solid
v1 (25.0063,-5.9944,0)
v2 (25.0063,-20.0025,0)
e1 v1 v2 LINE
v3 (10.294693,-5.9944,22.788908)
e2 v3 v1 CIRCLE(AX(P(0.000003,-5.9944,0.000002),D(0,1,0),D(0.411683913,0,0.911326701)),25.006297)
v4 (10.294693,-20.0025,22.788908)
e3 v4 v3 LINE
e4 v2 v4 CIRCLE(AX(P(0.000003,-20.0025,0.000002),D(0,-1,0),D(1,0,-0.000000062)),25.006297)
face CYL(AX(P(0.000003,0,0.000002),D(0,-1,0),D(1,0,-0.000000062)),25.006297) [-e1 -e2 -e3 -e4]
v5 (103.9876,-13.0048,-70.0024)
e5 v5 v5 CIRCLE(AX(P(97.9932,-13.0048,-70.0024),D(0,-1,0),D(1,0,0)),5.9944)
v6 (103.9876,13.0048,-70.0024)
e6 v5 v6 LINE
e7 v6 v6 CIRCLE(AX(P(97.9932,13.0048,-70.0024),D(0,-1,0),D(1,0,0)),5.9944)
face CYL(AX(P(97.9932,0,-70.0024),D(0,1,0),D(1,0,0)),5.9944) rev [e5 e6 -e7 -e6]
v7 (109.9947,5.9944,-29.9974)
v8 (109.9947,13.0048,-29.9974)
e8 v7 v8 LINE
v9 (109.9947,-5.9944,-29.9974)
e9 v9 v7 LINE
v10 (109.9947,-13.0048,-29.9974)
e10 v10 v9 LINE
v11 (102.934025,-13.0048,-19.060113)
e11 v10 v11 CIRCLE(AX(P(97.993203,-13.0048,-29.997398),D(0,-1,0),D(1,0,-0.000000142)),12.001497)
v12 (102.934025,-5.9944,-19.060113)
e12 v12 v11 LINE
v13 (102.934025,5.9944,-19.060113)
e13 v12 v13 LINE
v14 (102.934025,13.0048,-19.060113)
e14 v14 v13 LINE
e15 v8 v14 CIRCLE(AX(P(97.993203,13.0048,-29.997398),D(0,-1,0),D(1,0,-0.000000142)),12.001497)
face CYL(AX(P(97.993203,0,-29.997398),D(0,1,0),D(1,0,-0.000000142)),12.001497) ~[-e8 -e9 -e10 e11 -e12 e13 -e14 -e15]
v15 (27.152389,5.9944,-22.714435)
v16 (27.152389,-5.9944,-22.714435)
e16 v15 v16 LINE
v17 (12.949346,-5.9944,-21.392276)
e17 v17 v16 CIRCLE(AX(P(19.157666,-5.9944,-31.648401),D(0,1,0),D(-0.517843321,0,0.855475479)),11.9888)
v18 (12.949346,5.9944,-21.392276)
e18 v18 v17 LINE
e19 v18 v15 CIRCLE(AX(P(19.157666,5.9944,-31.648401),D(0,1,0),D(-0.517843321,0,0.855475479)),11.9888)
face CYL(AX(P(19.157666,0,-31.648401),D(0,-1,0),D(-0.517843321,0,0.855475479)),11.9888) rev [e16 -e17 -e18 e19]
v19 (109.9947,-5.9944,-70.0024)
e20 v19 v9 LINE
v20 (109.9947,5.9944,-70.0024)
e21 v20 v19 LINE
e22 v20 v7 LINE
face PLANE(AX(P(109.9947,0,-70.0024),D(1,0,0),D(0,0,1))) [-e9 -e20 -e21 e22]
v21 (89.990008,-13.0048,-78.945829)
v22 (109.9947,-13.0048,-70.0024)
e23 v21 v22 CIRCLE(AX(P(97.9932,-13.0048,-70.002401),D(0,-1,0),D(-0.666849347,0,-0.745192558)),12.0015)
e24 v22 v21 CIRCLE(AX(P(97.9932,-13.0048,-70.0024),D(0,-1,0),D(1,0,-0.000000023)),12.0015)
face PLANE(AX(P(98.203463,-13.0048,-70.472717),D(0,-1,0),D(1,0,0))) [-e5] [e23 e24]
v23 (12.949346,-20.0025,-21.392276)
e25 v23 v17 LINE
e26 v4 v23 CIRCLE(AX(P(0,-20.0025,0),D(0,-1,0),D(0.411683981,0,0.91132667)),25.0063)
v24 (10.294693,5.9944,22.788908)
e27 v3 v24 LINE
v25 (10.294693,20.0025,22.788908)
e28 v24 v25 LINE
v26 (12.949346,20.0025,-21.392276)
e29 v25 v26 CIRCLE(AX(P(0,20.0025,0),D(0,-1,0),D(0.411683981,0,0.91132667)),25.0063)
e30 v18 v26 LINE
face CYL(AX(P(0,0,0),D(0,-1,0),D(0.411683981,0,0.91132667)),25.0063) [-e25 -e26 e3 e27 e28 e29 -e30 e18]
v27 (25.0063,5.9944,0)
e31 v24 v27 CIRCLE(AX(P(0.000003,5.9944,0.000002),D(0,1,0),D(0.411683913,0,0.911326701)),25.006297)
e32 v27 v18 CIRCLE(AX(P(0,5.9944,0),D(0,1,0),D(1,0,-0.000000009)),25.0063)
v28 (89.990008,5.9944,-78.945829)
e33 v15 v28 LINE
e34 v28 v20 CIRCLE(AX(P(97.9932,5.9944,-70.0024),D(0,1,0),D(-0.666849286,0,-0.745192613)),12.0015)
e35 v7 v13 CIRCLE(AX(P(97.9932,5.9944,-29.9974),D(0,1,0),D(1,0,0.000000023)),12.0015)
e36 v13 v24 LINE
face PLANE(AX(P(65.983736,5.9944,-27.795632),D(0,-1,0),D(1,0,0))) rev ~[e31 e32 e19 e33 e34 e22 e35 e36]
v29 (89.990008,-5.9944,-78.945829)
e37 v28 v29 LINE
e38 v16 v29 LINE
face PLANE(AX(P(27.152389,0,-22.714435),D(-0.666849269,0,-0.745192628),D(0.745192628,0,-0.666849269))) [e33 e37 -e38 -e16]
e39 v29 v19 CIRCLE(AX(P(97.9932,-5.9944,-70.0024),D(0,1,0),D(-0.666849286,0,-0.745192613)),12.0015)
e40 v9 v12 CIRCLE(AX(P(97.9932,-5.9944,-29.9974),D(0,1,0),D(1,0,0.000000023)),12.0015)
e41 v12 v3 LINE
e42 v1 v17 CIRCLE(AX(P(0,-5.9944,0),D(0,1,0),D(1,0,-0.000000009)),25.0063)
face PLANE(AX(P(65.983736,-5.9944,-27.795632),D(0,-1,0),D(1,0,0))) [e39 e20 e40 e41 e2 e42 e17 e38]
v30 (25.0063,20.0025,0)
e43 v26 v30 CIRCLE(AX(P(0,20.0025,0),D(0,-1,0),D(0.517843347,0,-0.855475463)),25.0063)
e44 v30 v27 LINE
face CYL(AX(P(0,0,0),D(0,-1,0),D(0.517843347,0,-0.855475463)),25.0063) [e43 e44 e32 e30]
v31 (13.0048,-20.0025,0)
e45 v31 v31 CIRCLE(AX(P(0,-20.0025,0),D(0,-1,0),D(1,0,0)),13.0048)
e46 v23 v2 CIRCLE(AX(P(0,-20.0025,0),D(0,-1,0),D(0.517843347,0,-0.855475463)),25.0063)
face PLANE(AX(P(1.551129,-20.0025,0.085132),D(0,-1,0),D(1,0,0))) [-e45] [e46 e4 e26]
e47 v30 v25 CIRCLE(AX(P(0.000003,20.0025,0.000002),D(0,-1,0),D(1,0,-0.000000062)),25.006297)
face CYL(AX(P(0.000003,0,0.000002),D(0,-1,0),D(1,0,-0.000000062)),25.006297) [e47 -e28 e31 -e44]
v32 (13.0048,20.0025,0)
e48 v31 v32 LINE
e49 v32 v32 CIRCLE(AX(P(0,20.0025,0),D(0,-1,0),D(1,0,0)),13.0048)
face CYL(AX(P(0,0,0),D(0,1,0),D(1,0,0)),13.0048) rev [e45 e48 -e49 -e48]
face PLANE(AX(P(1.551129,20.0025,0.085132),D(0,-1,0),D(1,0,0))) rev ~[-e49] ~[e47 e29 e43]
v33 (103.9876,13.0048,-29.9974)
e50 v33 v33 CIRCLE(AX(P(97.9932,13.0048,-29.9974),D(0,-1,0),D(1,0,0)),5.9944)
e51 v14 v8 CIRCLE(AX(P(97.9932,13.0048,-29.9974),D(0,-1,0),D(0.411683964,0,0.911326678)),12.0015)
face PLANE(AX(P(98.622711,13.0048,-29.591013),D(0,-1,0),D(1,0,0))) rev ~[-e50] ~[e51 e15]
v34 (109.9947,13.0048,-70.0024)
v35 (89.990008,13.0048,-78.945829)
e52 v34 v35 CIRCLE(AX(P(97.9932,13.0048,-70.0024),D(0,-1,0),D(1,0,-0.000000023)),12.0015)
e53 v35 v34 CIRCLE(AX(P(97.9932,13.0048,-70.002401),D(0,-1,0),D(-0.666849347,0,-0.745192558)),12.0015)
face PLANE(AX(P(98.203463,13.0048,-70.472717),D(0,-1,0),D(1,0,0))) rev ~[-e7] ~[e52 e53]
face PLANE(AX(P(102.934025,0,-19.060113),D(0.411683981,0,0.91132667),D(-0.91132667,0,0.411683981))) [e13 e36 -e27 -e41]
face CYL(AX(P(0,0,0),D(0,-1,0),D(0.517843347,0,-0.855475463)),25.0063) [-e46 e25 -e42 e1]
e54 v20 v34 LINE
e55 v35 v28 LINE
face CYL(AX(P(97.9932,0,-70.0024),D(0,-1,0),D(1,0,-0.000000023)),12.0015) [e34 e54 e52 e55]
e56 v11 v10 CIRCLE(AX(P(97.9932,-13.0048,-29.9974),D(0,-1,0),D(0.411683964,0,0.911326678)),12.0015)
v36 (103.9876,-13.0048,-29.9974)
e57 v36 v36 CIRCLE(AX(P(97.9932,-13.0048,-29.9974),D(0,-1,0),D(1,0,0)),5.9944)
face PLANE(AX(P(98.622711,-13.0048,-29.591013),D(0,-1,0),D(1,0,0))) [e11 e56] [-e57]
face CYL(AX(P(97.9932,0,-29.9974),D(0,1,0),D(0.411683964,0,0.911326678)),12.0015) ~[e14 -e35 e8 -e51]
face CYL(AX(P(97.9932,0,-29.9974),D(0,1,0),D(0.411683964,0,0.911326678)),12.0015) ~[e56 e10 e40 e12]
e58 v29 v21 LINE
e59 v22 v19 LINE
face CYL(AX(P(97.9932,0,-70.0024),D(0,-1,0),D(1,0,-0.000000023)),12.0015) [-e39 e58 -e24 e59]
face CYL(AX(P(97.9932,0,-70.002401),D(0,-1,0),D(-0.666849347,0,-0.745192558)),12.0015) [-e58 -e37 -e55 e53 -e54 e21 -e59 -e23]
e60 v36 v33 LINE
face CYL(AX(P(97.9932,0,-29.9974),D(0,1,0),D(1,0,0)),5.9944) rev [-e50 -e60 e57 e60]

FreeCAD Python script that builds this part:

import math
import FreeCAD as App
import Part
import Sketcher
Q = App.Units.Quantity

doc = App.newDocument("Part")
body = doc.addObject("PartDesign::Body", "Body")

sketch1 = body.newObject("Sketcher::SketchObject", "Sketch")
sketch1.AttachmentSupport = (doc.getObject("XZ_Plane"), [""])
sketch1.MapMode = "FlatFace"
sketch1.addGeometry([
    Part.ArcOfCircle(Part.Circle(App.Vector(0, 0, 0), App.Vector(0, 0, 1), 25), math.radians(0), math.radians(66)),
    Part.ArcOfCircle(Part.Circle(App.Vector(0, 0, 0), App.Vector(0, 0, 1), 25), math.radians(-59), math.radians(0)),
    Part.ArcOfCircle(Part.Circle(App.Vector(19, -32, 0), App.Vector(0, 0, 1), 12), math.radians(48), math.radians(121)),
    Part.LineSegment(App.Vector(27, -23, 0), App.Vector(90, -79, 0)),
    Part.ArcOfCircle(Part.Circle(App.Vector(98, -70, 0), App.Vector(0, 0, 1), 12), math.radians(0), math.radians(228)),
    Part.LineSegment(App.Vector(110, -70, 0), App.Vector(110, -30, 0)),
    Part.ArcOfCircle(Part.Circle(App.Vector(98, -30, 0), App.Vector(0, 0, 1), 12), math.radians(66), math.radians(360)),
    Part.LineSegment(App.Vector(103, -19, 0), App.Vector(10, 23, 0)),
], False)
sketch1.addConstraint([
    Sketcher.Constraint("Tangent", 0, 1, 1, 2),
    Sketcher.Constraint("Tangent", 1, 1, 2, 2),
    Sketcher.Constraint("Tangent", 2, 1, 3, 1),
    Sketcher.Constraint("Tangent", 3, 2, 4, 2),
    Sketcher.Constraint("Tangent", 4, 1, 5, 1),
    Sketcher.Constraint("Tangent", 5, 2, 6, 2),
    Sketcher.Constraint("Tangent", 6, 1, 7, 1),
    Sketcher.Constraint("Tangent", 7, 2, 0, 2),
    Sketcher.Constraint("Vertical", 5),
    Sketcher.Constraint("Coincident", 0, 3, -1, 1),
    Sketcher.Constraint("Equal", 4, 6),
    Sketcher.Constraint("PointOnObject", 0, 1, -1),
    Sketcher.Constraint("Radius", 2, Q("0.472 in")),
    Sketcher.Constraint("Radius", 0, Q("0.9844999 in")),
    Sketcher.Constraint("Radius", 1, Q("0.9845 in")),
    Sketcher.Constraint("Radius", 4, Q("0.4725 in")),
    Sketcher.Constraint("DistanceY", 5, 1, 5, 2, Q("1.575 in")),
    Sketcher.Constraint("DistanceY", 4, 3, 2, 3, Q("1.51 in")),
    Sketcher.Constraint("DistanceY", 2, 3, -1, 1, Q("1.246 in")),
    Sketcher.Constraint("DistanceX", -1, 1, 4, 3, Q("3.858 in")),
])
pad1 = body.newObject("PartDesign::Pad", "Pad")
pad1.Profile = sketch1
pad1.Length = Q("0.472 in")
pad1.Midplane = True

sketch2 = body.newObject("Sketcher::SketchObject", "Sketch001")
sketch2.AttachmentSupport = (doc.getObject("XZ_Plane"), [""])
sketch2.MapMode = "FlatFace"
sketch2.addGeometry([
    Part.ArcOfCircle(Part.Circle(App.Vector(0, 0, 0), App.Vector(0, 0, 1), 25), math.radians(-59), math.radians(0)),
    Part.ArcOfCircle(Part.Circle(App.Vector(0, 0, 0), App.Vector(0, 0, 1), 25), math.radians(0), math.radians(66)),
    Part.ArcOfCircle(Part.Circle(App.Vector(0, 0, 0), App.Vector(0, 0, 1), 25), math.radians(66), math.radians(301)),
    Part.Circle(App.Vector(0, 0, 0), App.Vector(0, 0, 1), 13),
], False)
sketch2.addConstraint([
    Sketcher.Constraint("Tangent", 0, 2, 1, 1),
    Sketcher.Constraint("Tangent", 1, 2, 2, 1),
    Sketcher.Constraint("Tangent", 2, 2, 0, 1),
    Sketcher.Constraint("Coincident", 0, 3, -1, 1),
    Sketcher.Constraint("Coincident", 3, 3, -1, 1),
    Sketcher.Constraint("PointOnObject", 0, 2, -1),
    Sketcher.Constraint("Diameter", 3, Q("1.024 in")),
    Sketcher.Constraint("Radius", 0, Q("0.9845 in")),
    Sketcher.Constraint("DistanceY", -1, 1, 1, 2, 22.788908),
    Sketcher.Constraint("DistanceX", -1, 1, 2, 2, 12.949346),
])
pad2 = body.newObject("PartDesign::Pad", "Pad001")
pad2.Profile = sketch2
pad2.Length = Q("1.575 in")
pad2.Midplane = True

sketch3 = body.newObject("Sketcher::SketchObject", "Sketch002")
sketch3.AttachmentSupport = (doc.getObject("XZ_Plane"), [""])
sketch3.MapMode = "FlatFace"
sketch3.addGeometry([
    Part.ArcOfCircle(Part.Circle(App.Vector(98, -30, 0), App.Vector(0, 0, 1), 12), math.radians(0), math.radians(66)),
    Part.ArcOfCircle(Part.Circle(App.Vector(98, -30, 0), App.Vector(0, 0, 1), 12), math.radians(66), math.radians(360)),
    Part.Circle(App.Vector(98, -30, 0), App.Vector(0, 0, 1), 6),
    Part.ArcOfCircle(Part.Circle(App.Vector(98, -70, 0), App.Vector(0, 0, 1), 12), math.radians(0), math.radians(228)),
    Part.ArcOfCircle(Part.Circle(App.Vector(98, -70, 0), App.Vector(0, 0, 1), 12), math.radians(-132), math.radians(0)),
    Part.Circle(App.Vector(98, -70, 0), App.Vector(0, 0, 1), 6),
], False)
sketch3.addConstraint([
    Sketcher.Constraint("Tangent", 0, 1, 1, 2),
    Sketcher.Constraint("Coincident", 1, 1, 0, 2),
    Sketcher.Constraint("Tangent", 3, 1, 4, 2),
    Sketcher.Constraint("Coincident", 4, 1, 3, 2),
    Sketcher.Constraint("Coincident", 2, 3, 0, 3),
    Sketcher.Constraint("Coincident", 5, 3, 3, 3),
    Sketcher.Constraint("Equal", 1, 3),
    Sketcher.Constraint("Equal", 2, 5),
    Sketcher.Constraint("Horizontal", 2, 3, 0, 1),
    Sketcher.Constraint("Horizontal", 5, 3, 3, 1),
    Sketcher.Constraint("Vertical", 2, 3, 3, 3),
    Sketcher.Constraint("Diameter", 2, Q("0.472 in")),
    Sketcher.Constraint("Radius", 0, Q("0.4724999 in")),
    Sketcher.Constraint("DistanceX", -1, 1, 0, 3, Q("3.8580001 in")),
    Sketcher.Constraint("DistanceY", 0, 3, -1, 1, Q("1.1809999 in")),
    Sketcher.Constraint("DistanceY", 3, 3, -1, 1, Q("2.756 in")),
    Sketcher.Constraint("DistanceY", 4, 1, -1, 1, 78.945829),
    Sketcher.Constraint("DistanceX", -1, 1, 1, 1, 102.934025),
])
pad3 = body.newObject("PartDesign::Pad", "Pad002")
pad3.Profile = sketch3
pad3.Length = Q("1.024 in")
pad3.Midplane = True

doc.recompute()
